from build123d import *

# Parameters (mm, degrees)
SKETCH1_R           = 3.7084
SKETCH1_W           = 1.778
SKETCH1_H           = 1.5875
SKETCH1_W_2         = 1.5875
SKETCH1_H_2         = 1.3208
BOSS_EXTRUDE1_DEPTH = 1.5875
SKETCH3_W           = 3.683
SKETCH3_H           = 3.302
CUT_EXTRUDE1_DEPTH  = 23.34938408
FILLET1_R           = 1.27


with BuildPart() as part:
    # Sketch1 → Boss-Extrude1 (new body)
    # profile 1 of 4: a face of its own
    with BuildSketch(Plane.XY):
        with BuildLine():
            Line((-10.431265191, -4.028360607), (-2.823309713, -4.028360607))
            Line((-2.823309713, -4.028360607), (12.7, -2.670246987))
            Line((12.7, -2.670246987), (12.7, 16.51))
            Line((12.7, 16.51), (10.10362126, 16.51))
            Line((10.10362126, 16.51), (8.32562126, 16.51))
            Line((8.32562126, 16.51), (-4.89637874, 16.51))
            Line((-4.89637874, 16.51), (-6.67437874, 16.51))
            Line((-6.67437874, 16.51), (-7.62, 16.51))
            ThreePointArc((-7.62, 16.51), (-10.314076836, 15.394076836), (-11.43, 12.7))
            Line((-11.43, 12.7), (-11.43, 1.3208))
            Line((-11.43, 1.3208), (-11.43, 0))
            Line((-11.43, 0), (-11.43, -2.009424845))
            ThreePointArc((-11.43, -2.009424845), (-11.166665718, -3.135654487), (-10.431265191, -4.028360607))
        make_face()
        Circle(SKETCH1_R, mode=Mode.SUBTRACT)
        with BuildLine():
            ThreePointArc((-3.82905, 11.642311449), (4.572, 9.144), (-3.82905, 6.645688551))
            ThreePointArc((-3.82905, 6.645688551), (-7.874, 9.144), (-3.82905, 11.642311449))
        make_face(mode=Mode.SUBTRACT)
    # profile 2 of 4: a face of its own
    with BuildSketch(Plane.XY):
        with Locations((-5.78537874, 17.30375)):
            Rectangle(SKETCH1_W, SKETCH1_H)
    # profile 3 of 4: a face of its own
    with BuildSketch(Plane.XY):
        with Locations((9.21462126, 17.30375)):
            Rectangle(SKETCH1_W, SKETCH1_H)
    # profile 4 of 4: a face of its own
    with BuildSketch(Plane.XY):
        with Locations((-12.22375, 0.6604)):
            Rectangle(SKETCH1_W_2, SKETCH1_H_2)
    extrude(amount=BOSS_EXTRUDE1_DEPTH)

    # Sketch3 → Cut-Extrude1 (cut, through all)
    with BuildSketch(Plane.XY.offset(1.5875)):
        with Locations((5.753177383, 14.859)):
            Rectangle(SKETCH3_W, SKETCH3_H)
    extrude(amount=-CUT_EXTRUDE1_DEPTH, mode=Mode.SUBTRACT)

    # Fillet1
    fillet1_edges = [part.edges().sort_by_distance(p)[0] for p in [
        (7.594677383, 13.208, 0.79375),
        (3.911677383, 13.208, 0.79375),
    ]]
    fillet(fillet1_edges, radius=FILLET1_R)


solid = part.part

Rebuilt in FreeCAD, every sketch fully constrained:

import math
import FreeCAD as App
import Part
import Sketcher

V = App.Vector
Q = App.Units.Quantity


def edges_at(feature, points):
    """Names of the edges that pass closest to the given points."""
    edges = feature.Shape.Edges
    near = lambda p: min(range(len(edges)), key=lambda i: edges[i].distToShape(Part.Vertex(*p))[0])
    return sorted({f"Edge{near(p) + 1}" for p in points})

doc = App.newDocument("Part")
body = doc.addObject("PartDesign::Body", "Body")

# Sketch on XY plane
sketch1 = doc.addObject("Sketcher::SketchObject", "Sketch")
body.addObject(sketch1)
sketch1.AttachmentSupport = (doc.XY_Plane, [""])
sketch1.MapMode = "FlatFace"
sketch1.addGeometry([
    Part.LineSegment(V(-10.4, -4, 0), V(-2.8, -4, 0)),  # 0
    Part.LineSegment(V(-2.8, -4, 0), V(12.7, -2.7, 0)),  # 1
    Part.LineSegment(V(12.7, -2.7, 0), V(12.7, 16.5, 0)),  # 2
    Part.LineSegment(V(12.7, 16.5, 0), V(10.1, 16.5, 0)),  # 3
    Part.LineSegment(V(10.1, 16.5, 0), V(10.1, 18.1, 0)),  # 4
    Part.LineSegment(V(10.1, 18.1, 0), V(8.3, 18.1, 0)),  # 5
    Part.LineSegment(V(8.3, 18.1, 0), V(8.3, 16.5, 0)),  # 6
    Part.LineSegment(V(8.3, 16.5, 0), V(-4.9, 16.5, 0)),  # 7
    Part.LineSegment(V(-4.9, 16.5, 0), V(-4.9, 18.1, 0)),  # 8
    Part.LineSegment(V(-4.9, 18.1, 0), V(-6.7, 18.1, 0)),  # 9
    Part.LineSegment(V(-6.7, 18.1, 0), V(-6.7, 16.5, 0)),  # 10
    Part.LineSegment(V(-6.7, 16.5, 0), V(-7.6, 16.5, 0)),  # 11
    Part.ArcOfCircle(Part.Circle(V(-7.6, 12.7, 0), V(0, 0, 1), 3.8), math.radians(90), math.radians(180)),  # 12
    Part.LineSegment(V(-11.4, 12.7, 0), V(-11.4, 1.3, 0)),  # 13
    Part.LineSegment(V(-11.4, 1.3, 0), V(-13, 1.3, 0)),  # 14
    Part.LineSegment(V(-13, 1.3, 0), V(-13, 0, 0)),  # 15
    Part.LineSegment(V(-13, 0, 0), V(-11.4, 0, 0)),  # 16
    Part.LineSegment(V(-11.4, 0, 0), V(-11.4, -2, 0)),  # 17
    Part.ArcOfCircle(Part.Circle(V(-8.9, -2, 0), V(0, 0, 1), 2.5), math.radians(-180), math.radians(-127)),  # 18
    Part.Circle(V(0, 0, 0), V(0, 0, 1), 3.7),  # 19
    Part.ArcOfCircle(Part.Circle(V(-5.1, 9.1, 0), V(0, 0, 1), 2.8), math.radians(63), math.radians(297)),  # 20
    Part.ArcOfCircle(Part.Circle(V(0, 9.1, 0), V(0, 0, 1), 4.6), math.radians(-147), math.radians(147)),  # 21
], False)
sketch1.addConstraint([
    Sketcher.Constraint("Coincident", 0, 2, 1, 1),
    Sketcher.Constraint("Coincident", 1, 2, 2, 1),
    Sketcher.Constraint("Coincident", 2, 2, 3, 1),
    Sketcher.Constraint("Coincident", 3, 2, 4, 1),
    Sketcher.Constraint("Coincident", 4, 2, 5, 1),
    Sketcher.Constraint("Coincident", 5, 2, 6, 1),
    Sketcher.Constraint("Coincident", 6, 2, 7, 1),
    Sketcher.Constraint("Coincident", 7, 2, 8, 1),
    Sketcher.Constraint("Coincident", 8, 2, 9, 1),
    Sketcher.Constraint("Coincident", 9, 2, 10, 1),
    Sketcher.Constraint("Coincident", 10, 2, 11, 1),
    Sketcher.Constraint("Tangent", 11, 2, 12, 1),
    Sketcher.Constraint("Tangent", 12, 2, 13, 1),
    Sketcher.Constraint("Coincident", 13, 2, 14, 1),
    Sketcher.Constraint("Coincident", 14, 2, 15, 1),
    Sketcher.Constraint("Coincident", 15, 2, 16, 1),
    Sketcher.Constraint("Coincident", 16, 2, 17, 1),
    Sketcher.Constraint("Tangent", 17, 2, 18, 1),
    Sketcher.Constraint("Coincident", 18, 2, 0, 1),
    Sketcher.Constraint("Coincident", 20, 1, 21, 2),
    Sketcher.Constraint("Coincident", 21, 1, 20, 2),
    Sketcher.Constraint("Horizontal", 0),
    Sketcher.Constraint("Vertical", 2),
    Sketcher.Constraint("Horizontal", 3),
    Sketcher.Constraint("Vertical", 4),
    Sketcher.Constraint("Horizontal", 5),
    Sketcher.Constraint("Vertical", 6),
    Sketcher.Constraint("Horizontal", 7),
    Sketcher.Constraint("Vertical", 8),
    Sketcher.Constraint("Horizontal", 9),
    Sketcher.Constraint("Vertical", 10),
    Sketcher.Constraint("Horizontal", 11),
    Sketcher.Constraint("Vertical", 13),
    Sketcher.Constraint("Horizontal", 14),
    Sketcher.Constraint("Vertical", 15),
    Sketcher.Constraint("Horizontal", 16),
    Sketcher.Constraint("Vertical", 17),
    Sketcher.Constraint("Coincident", 19, 3, -1, 1),
    Sketcher.Constraint("PointOnObject", 21, 3, -2),
    Sketcher.Constraint("PointOnObject", 15, 2, -1),
    Sketcher.Constraint("Horizontal", 20, 3, 21, 3),
    Sketcher.Constraint("Horizontal", 3, 2, 6, 2),
    Sketcher.Constraint("Horizontal", 5, 2, 8, 2),
    Sketcher.Constraint("Horizontal", 7, 2, 10, 2),
    Sketcher.Constraint("Vertical", 13, 2, 16, 2),
    Sketcher.Constraint("Equal", 5, 9),
    Sketcher.Constraint("Equal", 16, 4),
    Sketcher.Constraint("Radius", 18, Q("0.1 in")),
    Sketcher.Constraint("Radius", 12, Q("0.15 in")),
    Sketcher.Constraint("Radius", 20, Q("0.11 in")),
    Sketcher.Constraint("Radius", 21, Q("0.18 in")),
    Sketcher.Constraint("Diameter", 19, Q("0.292 in")),
    Sketcher.Constraint("Angle", 1, Q("5 deg")),
    Sketcher.Constraint("DistanceX", 5, 2, 5, 1, Q("0.07 in")),
    Sketcher.Constraint("DistanceX", 12, 3, -1, 1, Q("0.3 in")),
    Sketcher.Constraint("DistanceY", -1, 1, 12, 3, Q("0.5 in")),
    Sketcher.Constraint("DistanceX", 20, 3, -1, 1, Q("0.2 in")),
    Sketcher.Constraint("DistanceX", -1, 1, 1, 2, Q("0.5 in")),
    Sketcher.Constraint("DistanceX", 14, 2, 14, 1, Q("0.0625 in")),
    Sketcher.Constraint("DistanceY", 13, 2, 13, 1, Q("0.448 in")),
    Sketcher.Constraint("DistanceY", -1, 1, 20, 3, Q("0.36 in")),
    Sketcher.Constraint("DistanceX", 7, 2, 7, 1, 13.222),
    Sketcher.Constraint("DistanceX", 3, 2, 3, 1, 2.596379),
    Sketcher.Constraint("DistanceX", 0, 1, 0, 2, 7.607955),
    Sketcher.Constraint("DistanceY", 2, 1, 2, 2, 19.180247),
    Sketcher.Constraint("DistanceY", 17, 2, 17, 1, 2.009425),
])
pad1 = doc.addObject("PartDesign::Pad", "Pad")
body.addObject(pad1)
pad1.Profile = sketch1
pad1.Length = Q("0.0625 in")

# Sketch on XY plane
sketch2 = doc.addObject("Sketcher::SketchObject", "Sketch001")
body.addObject(sketch2)
sketch2.AttachmentSupport = (doc.XY_Plane, [""])
sketch2.MapMode = "FlatFace"
sketch2.AttachmentOffset = App.Placement(V(0, 0, 0.0625 * 25.4), App.Rotation())
sketch2.addGeometry([
    Part.LineSegment(V(3.9, 16.5, 0), V(3.9, 13.2, 0)),
    Part.LineSegment(V(3.9, 13.2, 0), V(7.6, 13.2, 0)),
    Part.LineSegment(V(7.6, 13.2, 0), V(7.6, 16.5, 0)),
    Part.LineSegment(V(7.6, 16.5, 0), V(3.9, 16.5, 0)),
], False)
sketch2.addConstraint([
    Sketcher.Constraint("Coincident", 0, 2, 1, 1),
    Sketcher.Constraint("Coincident", 1, 2, 2, 1),
    Sketcher.Constraint("Coincident", 2, 2, 3, 1),
    Sketcher.Constraint("Coincident", 3, 2, 0, 1),
    Sketcher.Constraint("Vertical", 0),
    Sketcher.Constraint("Horizontal", 1),
    Sketcher.Constraint("Vertical", 2),
    Sketcher.Constraint("Horizontal", 3),
    Sketcher.Constraint("DistanceY", 0, 2, 0, 1, Q("0.13 in")),
    Sketcher.Constraint("DistanceX", 1, 1, 1, 2, Q("0.145 in")),
    Sketcher.Constraint("DistanceY", -1, 1, 0, 2, Q("0.52 in")),
    Sketcher.Constraint("DistanceX", -1, 1, 0, 2, 3.911677),
])
pocket1 = doc.addObject("PartDesign::Pocket", "Pocket")
body.addObject(pocket1)
pocket1.Profile = sketch2
pocket1.Type = "ThroughAll"
doc.recompute()

fillet = doc.addObject("PartDesign::Fillet", "Fillet")
body.addObject(fillet)
fillet.Base = (pocket1, edges_at(pocket1, [(7.595, 13.208, 0.794), (3.912, 13.208, 0.794)]))
fillet.Radius = Q("0.05 in")

doc.recompute()
